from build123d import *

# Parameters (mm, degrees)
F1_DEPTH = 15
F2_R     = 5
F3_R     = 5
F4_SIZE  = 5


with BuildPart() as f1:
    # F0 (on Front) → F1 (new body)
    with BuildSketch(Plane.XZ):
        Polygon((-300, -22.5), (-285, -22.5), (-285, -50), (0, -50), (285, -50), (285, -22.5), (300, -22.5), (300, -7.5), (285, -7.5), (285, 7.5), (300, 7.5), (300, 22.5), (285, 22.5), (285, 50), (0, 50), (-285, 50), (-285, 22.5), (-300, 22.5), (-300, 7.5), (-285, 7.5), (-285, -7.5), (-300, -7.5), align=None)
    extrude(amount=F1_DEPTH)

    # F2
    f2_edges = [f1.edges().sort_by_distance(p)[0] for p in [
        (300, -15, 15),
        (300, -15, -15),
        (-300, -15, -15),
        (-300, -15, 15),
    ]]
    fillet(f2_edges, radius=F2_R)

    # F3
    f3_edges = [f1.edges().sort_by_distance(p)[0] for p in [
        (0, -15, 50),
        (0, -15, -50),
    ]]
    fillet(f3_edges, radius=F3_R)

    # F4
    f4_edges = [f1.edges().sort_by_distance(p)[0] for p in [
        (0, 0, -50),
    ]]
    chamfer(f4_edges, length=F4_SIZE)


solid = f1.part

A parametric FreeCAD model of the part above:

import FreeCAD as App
import Part
import Sketcher
from FreeCAD import Vector


def edges_at(feature, points):
    """Names of the edges that pass closest to the given points."""
    edges = feature.Shape.Edges
    near = lambda p: min(range(len(edges)), key=lambda i: edges[i].distToShape(Part.Vertex(*p))[0])
    return sorted({f"Edge{near(p) + 1}" for p in points})

doc = App.newDocument("Part")
body = doc.addObject("PartDesign::Body", "Body")

# Sketch on XZ plane
sketch1 = doc.addObject("Sketcher::SketchObject", "Sketch")
body.addObject(sketch1)
sketch1.AttachmentSupport = (doc.XZ_Plane, [""])
sketch1.MapMode = "FlatFace"
sketch1.addGeometry([
    Part.LineSegment(Vector(-300, -22.5, 0), Vector(-285, -22.5, 0)),  # 0
    Part.LineSegment(Vector(-285, -22.5, 0), Vector(-285, -50, 0)),  # 1
    Part.LineSegment(Vector(-285, -50, 0), Vector(285, -50, 0)),  # 2
    Part.LineSegment(Vector(285, -50, 0), Vector(285, -22.5, 0)),  # 3
    Part.LineSegment(Vector(285, -22.5, 0), Vector(300, -22.5, 0)),  # 4
    Part.LineSegment(Vector(300, -22.5, 0), Vector(300, -7.5, 0)),  # 5
    Part.LineSegment(Vector(300, -7.5, 0), Vector(285, -7.5, 0)),  # 6
    Part.LineSegment(Vector(285, -7.5, 0), Vector(285, 7.5, 0)),  # 7
    Part.LineSegment(Vector(285, 7.5, 0), Vector(300, 7.5, 0)),  # 8
    Part.LineSegment(Vector(300, 7.5, 0), Vector(300, 22.5, 0)),  # 9
    Part.LineSegment(Vector(300, 22.5, 0), Vector(285, 22.5, 0)),  # 10
    Part.LineSegment(Vector(285, 22.5, 0), Vector(285, 50, 0)),  # 11
    Part.LineSegment(Vector(285, 50, 0), Vector(-285, 50, 0)),  # 12
    Part.LineSegment(Vector(-285, 50, 0), Vector(-285, 22.5, 0)),  # 13
    Part.LineSegment(Vector(-285, 22.5, 0), Vector(-300, 22.5, 0)),  # 14
    Part.LineSegment(Vector(-300, 22.5, 0), Vector(-300, 7.5, 0)),  # 15
    Part.LineSegment(Vector(-300, 7.5, 0), Vector(-285, 7.5, 0)),  # 16
    Part.LineSegment(Vector(-285, 7.5, 0), Vector(-285, -7.5, 0)),  # 17
    Part.LineSegment(Vector(-285, -7.5, 0), Vector(-300, -7.5, 0)),  # 18
    Part.LineSegment(Vector(-300, -7.5, 0), Vector(-300, -22.5, 0)),  # 19
], False)
sketch1.addConstraint([
    Sketcher.Constraint("Coincident", 0, 2, 1, 1),
    Sketcher.Constraint("Coincident", 1, 2, 2, 1),
    Sketcher.Constraint("Coincident", 2, 2, 3, 1),
    Sketcher.Constraint("Coincident", 3, 2, 4, 1),
    Sketcher.Constraint("Coincident", 4, 2, 5, 1),
    Sketcher.Constraint("Coincident", 5, 2, 6, 1),
    Sketcher.Constraint("Coincident", 6, 2, 7, 1),
    Sketcher.Constraint("Coincident", 7, 2, 8, 1),
    Sketcher.Constraint("Coincident", 8, 2, 9, 1),
    Sketcher.Constraint("Coincident", 9, 2, 10, 1),
    Sketcher.Constraint("Coincident", 10, 2, 11, 1),
    Sketcher.Constraint("Coincident", 11, 2, 12, 1),
    Sketcher.Constraint("Coincident", 12, 2, 13, 1),
    Sketcher.Constraint("Coincident", 13, 2, 14, 1),
    Sketcher.Constraint("Coincident", 14, 2, 15, 1),
    Sketcher.Constraint("Coincident", 15, 2, 16, 1),
    Sketcher.Constraint("Coincident", 16, 2, 17, 1),
    Sketcher.Constraint("Coincident", 17, 2, 18, 1),
    Sketcher.Constraint("Coincident", 18, 2, 19, 1),
    Sketcher.Constraint("Coincident", 19, 2, 0, 1),
    Sketcher.Constraint("Horizontal", 0),
    Sketcher.Constraint("Vertical", 1),
    Sketcher.Constraint("Horizontal", 2),
    Sketcher.Constraint("Vertical", 3),
    Sketcher.Constraint("Horizontal", 4),
    Sketcher.Constraint("Vertical", 5),
    Sketcher.Constraint("Horizontal", 6),
    Sketcher.Constraint("Vertical", 7),
    Sketcher.Constraint("Horizontal", 8),
    Sketcher.Constraint("Vertical", 9),
    Sketcher.Constraint("Horizontal", 10),
    Sketcher.Constraint("Vertical", 11),
    Sketcher.Constraint("Horizontal", 12),
    Sketcher.Constraint("Vertical", 13),
    Sketcher.Constraint("Horizontal", 14),
    Sketcher.Constraint("Vertical", 15),
    Sketcher.Constraint("Horizontal", 16),
    Sketcher.Constraint("Vertical", 17),
    Sketcher.Constraint("Horizontal", 18),
    Sketcher.Constraint("Vertical", 19),
    Sketcher.Constraint("Symmetric", 0, 2, 10, 2, -1, 1),
    Sketcher.Constraint("Symmetric", 2, 2, 12, 2, -1, 1),
    Sketcher.Constraint("Symmetric", 4, 2, 14, 2, -1, 1),
    Sketcher.Constraint("Symmetric", 6, 2, 16, 2, -1, 1),
    Sketcher.Constraint("Symmetric", 8, 2, 18, 2, -1, 1),
    Sketcher.Constraint("Symmetric", 0, 2, 3, 2, -2),
    Sketcher.Constraint("Symmetric", 8, 2, 15, 2, -2),
    Sketcher.Constraint("Vertical", 3, 2, 6, 2),
    Sketcher.Constraint("Equal", 18, 5),
    Sketcher.Constraint("Equal", 5, 7),
    Sketcher.Constraint("DistanceX", 0, 1, 0, 2, 15.0),
    Sketcher.Constraint("DistanceX", 2, 1, 2, 2, 570.0),
    Sketcher.Constraint("DistanceY", 1, 2, 1, 1, 27.5),
])
pad1 = doc.addObject("PartDesign::Pad", "Pad")
body.addObject(pad1)
pad1.Profile = sketch1
pad1.Length = 15
doc.recompute()

fillet = doc.addObject("PartDesign::Fillet", "Fillet")
body.addObject(fillet)
fillet.Base = (pad1, edges_at(pad1, [
    (300, -15, 15),
    (300, -15, -15),
    (-300, -15, -15),
    (-300, -15, 15),
]))
fillet.Radius = 5
doc.recompute()

fillet2 = doc.addObject("PartDesign::Fillet", "Fillet001")
body.addObject(fillet2)
fillet2.Base = (fillet, edges_at(fillet, [(0, -15, 50), (0, -15, -50)]))
fillet2.Radius = 5
doc.recompute()

chamfer = doc.addObject("PartDesign::Chamfer", "Chamfer")
body.addObject(chamfer)
chamfer.Base = (fillet2, edges_at(fillet2, [(0, 0, -50)]))
chamfer.Size = 5

doc.recompute()
